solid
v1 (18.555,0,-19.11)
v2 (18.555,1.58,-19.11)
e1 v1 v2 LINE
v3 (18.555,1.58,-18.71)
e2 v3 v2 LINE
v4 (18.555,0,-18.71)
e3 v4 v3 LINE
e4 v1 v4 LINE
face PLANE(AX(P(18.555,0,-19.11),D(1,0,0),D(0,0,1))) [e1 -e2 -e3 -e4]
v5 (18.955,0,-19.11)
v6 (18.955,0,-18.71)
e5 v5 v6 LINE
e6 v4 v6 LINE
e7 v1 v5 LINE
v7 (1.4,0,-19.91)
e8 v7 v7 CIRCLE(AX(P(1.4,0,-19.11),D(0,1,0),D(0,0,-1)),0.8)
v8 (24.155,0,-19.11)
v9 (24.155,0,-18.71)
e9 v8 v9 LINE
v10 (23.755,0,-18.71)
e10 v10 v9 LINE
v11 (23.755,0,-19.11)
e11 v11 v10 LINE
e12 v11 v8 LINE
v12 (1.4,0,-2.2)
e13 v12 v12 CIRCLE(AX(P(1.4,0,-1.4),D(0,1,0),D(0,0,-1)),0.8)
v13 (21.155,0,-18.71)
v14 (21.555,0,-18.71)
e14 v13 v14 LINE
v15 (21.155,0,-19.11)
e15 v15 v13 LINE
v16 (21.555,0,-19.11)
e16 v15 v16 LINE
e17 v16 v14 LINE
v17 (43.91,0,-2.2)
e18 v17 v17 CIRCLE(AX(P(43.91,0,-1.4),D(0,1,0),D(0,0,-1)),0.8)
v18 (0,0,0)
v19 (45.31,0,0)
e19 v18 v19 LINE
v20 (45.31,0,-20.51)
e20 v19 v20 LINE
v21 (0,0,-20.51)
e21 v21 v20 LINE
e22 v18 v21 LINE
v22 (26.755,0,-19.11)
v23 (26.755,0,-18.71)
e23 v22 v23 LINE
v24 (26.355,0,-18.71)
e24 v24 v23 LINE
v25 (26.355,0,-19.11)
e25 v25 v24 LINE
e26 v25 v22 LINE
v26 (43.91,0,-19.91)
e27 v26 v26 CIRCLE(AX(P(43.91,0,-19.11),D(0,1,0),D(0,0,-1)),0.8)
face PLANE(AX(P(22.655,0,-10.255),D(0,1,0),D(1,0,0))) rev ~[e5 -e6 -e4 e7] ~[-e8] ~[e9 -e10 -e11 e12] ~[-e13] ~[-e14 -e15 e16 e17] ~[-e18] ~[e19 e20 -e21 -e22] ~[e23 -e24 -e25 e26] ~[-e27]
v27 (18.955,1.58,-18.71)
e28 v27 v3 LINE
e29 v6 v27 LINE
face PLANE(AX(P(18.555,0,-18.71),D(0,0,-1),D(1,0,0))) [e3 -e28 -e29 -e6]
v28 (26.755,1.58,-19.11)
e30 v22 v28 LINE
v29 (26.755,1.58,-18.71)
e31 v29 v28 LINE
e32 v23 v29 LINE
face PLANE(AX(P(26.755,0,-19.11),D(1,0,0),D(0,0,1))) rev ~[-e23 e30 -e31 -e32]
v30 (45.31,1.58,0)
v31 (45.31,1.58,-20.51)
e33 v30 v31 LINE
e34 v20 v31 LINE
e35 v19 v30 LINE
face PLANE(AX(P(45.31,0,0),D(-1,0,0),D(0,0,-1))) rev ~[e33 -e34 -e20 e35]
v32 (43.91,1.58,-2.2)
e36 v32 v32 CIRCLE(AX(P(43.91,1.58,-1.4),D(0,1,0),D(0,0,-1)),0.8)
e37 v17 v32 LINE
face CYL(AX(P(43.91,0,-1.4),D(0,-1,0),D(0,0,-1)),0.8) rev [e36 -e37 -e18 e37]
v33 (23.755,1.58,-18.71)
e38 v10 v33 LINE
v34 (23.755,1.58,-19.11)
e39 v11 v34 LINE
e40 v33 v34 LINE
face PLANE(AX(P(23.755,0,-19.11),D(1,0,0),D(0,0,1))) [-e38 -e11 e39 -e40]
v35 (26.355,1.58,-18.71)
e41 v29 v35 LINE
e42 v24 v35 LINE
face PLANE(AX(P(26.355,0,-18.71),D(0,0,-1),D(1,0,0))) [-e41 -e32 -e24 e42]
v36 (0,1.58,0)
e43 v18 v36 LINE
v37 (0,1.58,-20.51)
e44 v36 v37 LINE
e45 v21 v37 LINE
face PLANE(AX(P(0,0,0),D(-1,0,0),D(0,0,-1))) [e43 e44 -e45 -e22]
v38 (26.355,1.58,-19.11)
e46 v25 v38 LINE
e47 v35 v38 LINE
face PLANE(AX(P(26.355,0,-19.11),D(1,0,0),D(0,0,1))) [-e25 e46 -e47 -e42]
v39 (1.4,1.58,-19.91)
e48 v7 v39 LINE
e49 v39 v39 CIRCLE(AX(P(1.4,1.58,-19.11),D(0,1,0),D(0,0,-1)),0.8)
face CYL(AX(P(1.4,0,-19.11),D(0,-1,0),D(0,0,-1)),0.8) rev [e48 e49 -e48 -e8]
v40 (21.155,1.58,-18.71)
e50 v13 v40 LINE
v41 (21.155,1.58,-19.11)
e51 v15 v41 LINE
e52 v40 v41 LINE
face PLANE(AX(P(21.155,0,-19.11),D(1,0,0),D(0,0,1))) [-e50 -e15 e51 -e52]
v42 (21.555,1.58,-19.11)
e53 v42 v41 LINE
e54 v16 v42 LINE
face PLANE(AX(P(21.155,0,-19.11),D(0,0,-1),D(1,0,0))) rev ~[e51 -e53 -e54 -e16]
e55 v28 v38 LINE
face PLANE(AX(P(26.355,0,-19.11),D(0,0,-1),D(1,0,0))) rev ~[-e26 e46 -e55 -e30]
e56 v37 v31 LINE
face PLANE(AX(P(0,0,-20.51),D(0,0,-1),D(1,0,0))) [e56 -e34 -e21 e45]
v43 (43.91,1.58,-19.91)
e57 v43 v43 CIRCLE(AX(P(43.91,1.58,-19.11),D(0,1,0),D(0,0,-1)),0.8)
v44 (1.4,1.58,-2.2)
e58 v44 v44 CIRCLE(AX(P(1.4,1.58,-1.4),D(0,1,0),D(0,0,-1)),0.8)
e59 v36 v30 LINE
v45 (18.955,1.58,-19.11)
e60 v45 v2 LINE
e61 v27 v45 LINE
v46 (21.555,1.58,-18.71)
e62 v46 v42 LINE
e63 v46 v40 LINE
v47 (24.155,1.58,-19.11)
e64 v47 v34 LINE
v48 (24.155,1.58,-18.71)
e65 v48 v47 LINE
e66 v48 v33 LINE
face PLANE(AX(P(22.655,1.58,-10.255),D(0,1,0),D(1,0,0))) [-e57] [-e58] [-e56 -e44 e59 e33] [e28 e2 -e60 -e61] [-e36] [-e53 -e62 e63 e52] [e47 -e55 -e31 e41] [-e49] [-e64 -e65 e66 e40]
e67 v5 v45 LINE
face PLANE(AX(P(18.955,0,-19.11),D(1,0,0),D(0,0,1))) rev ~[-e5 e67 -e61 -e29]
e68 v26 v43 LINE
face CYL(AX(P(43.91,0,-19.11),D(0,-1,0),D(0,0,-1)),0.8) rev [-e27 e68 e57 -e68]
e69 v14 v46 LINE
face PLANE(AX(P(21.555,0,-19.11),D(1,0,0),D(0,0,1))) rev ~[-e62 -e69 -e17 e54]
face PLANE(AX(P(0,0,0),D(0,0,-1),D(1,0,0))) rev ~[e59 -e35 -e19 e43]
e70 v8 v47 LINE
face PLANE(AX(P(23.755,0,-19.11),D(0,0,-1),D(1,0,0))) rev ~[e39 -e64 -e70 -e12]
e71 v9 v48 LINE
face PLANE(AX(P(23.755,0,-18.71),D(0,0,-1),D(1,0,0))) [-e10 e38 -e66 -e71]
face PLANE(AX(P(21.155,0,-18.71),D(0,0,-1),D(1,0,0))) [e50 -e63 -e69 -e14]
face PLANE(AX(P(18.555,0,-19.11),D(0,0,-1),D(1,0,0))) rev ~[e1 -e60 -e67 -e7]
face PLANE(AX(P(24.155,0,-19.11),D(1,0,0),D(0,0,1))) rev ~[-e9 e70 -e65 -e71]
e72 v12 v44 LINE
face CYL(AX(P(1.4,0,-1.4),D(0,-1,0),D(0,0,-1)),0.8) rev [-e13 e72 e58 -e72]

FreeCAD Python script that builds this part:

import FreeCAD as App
import Part
import Sketcher

V = App.Vector
Q = App.Units.Quantity

doc = App.newDocument("Part")
params = doc.addObject("Spreadsheet::Sheet", "Params")
for row, (alias, value) in enumerate([
    ("sketch1_diameter", "1.6 mm"),
    ("sketch1_width", "45.31 mm"),
    ("sketch1_height", "20.51 mm"),
    ("pad1_length", "1.58 mm"),
    ("sketch2_width", "0.4 mm"),
], start=1):
    params.set(f"A{row}", alias)
    params.set(f"B{row}", "=" + value)
    params.setAlias(f"B{row}", alias)

body = doc.addObject("PartDesign::Body", "Body")

sketch1 = body.newObject("Sketcher::SketchObject", "Sketch")
sketch1.AttachmentSupport = (doc.getObject("XZ_Plane"), [""])
sketch1.MapMode = "FlatFace"
sketch1.addGeometry([
    Part.LineSegment(V(0, -20.5, 0), V(0, 0, 0)),
    Part.LineSegment(V(0, 0, 0), V(45.3, 0, 0)),
    Part.LineSegment(V(45.3, 0, 0), V(45.3, -20.5, 0)),
    Part.LineSegment(V(45.3, -20.5, 0), V(0, -20.5, 0)),
    Part.Circle(V(1.4, -1.4, 0), V(0, 0, 1), 0.8),
    Part.Circle(V(43.9, -1.4, 0), V(0, 0, 1), 0.8),
    Part.Circle(V(1.4, -19.1, 0), V(0, 0, 1), 0.8),
    Part.Circle(V(43.9, -19.1, 0), V(0, 0, 1), 0.8),
], False)
sketch1.addConstraint([
    Sketcher.Constraint("Coincident", 0, 2, 1, 1),
    Sketcher.Constraint("Coincident", 1, 2, 2, 1),
    Sketcher.Constraint("Coincident", 2, 2, 3, 1),
    Sketcher.Constraint("Coincident", 3, 2, 0, 1),
    Sketcher.Constraint("Vertical", 0),
    Sketcher.Constraint("Horizontal", 1),
    Sketcher.Constraint("Vertical", 2),
    Sketcher.Constraint("Horizontal", 3),
    Sketcher.Constraint("Coincident", 0, 2, -1, 1),
    Sketcher.Constraint("Equal", 4, 5),
    Sketcher.Constraint("Equal", 5, 6),
    Sketcher.Constraint("Equal", 6, 7),
    Sketcher.Constraint("Horizontal", 4, 3, 5, 3),
    Sketcher.Constraint("Horizontal", 6, 3, 7, 3),
    Sketcher.Constraint("Vertical", 4, 3, 6, 3),
    Sketcher.Constraint("Vertical", 5, 3, 7, 3),
    Sketcher.Constraint("Diameter", 4, Q("1.6 mm")),
    Sketcher.Constraint("DistanceX", 1, 1, 1, 2, Q("45.31 mm")),
    Sketcher.Constraint("DistanceY", 0, 1, 0, 2, Q("20.51 mm")),
    Sketcher.Constraint("DistanceX", -1, 1, 4, 3, Q("1.4 mm")),
    Sketcher.Constraint("DistanceY", 4, 3, -1, 1, Q("1.4 mm")),
    Sketcher.Constraint("DistanceX", 5, 3, 1, 2, Q("1.4 mm")),
    Sketcher.Constraint("DistanceY", 2, 2, 7, 3, Q("1.4 mm")),
])
sketch1.setExpression("Constraints[16]", "Params.sketch1_diameter")
sketch1.setExpression("Constraints[17]", "Params.sketch1_width")
sketch1.setExpression("Constraints[18]", "Params.sketch1_height")
pad1 = body.newObject("PartDesign::Pad", "Pad")
pad1.Profile = sketch1
pad1.setExpression("Length", "Params.pad1_length")
pad1.Reversed = True

sketch2 = body.newObject("Sketcher::SketchObject", "Sketch001")
sketch2.AttachmentSupport = (doc.getObject("XZ_Plane"), [""])
sketch2.MapMode = "FlatFace"
sketch2.addGeometry([
    Part.LineSegment(V(21.16, -18.71, 0), V(21.16, -19.11, 0)),
    Part.LineSegment(V(21.16, -19.11, 0), V(21.55, -19.11, 0)),
    Part.LineSegment(V(21.55, -19.11, 0), V(21.55, -18.71, 0)),
    Part.LineSegment(V(21.55, -18.71, 0), V(21.16, -18.71, 0)),
    Part.LineSegment(V(18.55, -18.71, 0), V(18.55, -19.11, 0)),
    Part.LineSegment(V(18.55, -19.11, 0), V(18.95, -19.11, 0)),
    Part.LineSegment(V(18.95, -19.11, 0), V(18.95, -18.71, 0)),
    Part.LineSegment(V(18.95, -18.71, 0), V(18.55, -18.71, 0)),
    Part.LineSegment(V(23.75, -18.71, 0), V(23.75, -19.11, 0)),
    Part.LineSegment(V(23.75, -19.11, 0), V(24.16, -19.11, 0)),
    Part.LineSegment(V(24.16, -19.11, 0), V(24.16, -18.71, 0)),
    Part.LineSegment(V(24.16, -18.71, 0), V(23.75, -18.71, 0)),
    Part.LineSegment(V(26.36, -18.71, 0), V(26.36, -19.11, 0)),
    Part.LineSegment(V(26.36, -19.11, 0), V(26.75, -19.11, 0)),
    Part.LineSegment(V(26.75, -19.11, 0), V(26.75, -18.71, 0)),
    Part.LineSegment(V(26.75, -18.71, 0), V(26.36, -18.71, 0)),
], False)
sketch2.addConstraint([
    Sketcher.Constraint("Coincident", 0, 2, 1, 1),
    Sketcher.Constraint("Coincident", 1, 2, 2, 1),
    Sketcher.Constraint("Coincident", 2, 2, 3, 1),
    Sketcher.Constraint("Coincident", 3, 2, 0, 1),
    Sketcher.Constraint("Coincident", 4, 2, 5, 1),
    Sketcher.Constraint("Coincident", 5, 2, 6, 1),
    Sketcher.Constraint("Coincident", 6, 2, 7, 1),
    Sketcher.Constraint("Coincident", 7, 2, 4, 1),
    Sketcher.Constraint("Coincident", 8, 2, 9, 1),
    Sketcher.Constraint("Coincident", 9, 2, 10, 1),
    Sketcher.Constraint("Coincident", 10, 2, 11, 1),
    Sketcher.Constraint("Coincident", 11, 2, 8, 1),
    Sketcher.Constraint("Coincident", 12, 2, 13, 1),
    Sketcher.Constraint("Coincident", 13, 2, 14, 1),
    Sketcher.Constraint("Coincident", 14, 2, 15, 1),
    Sketcher.Constraint("Coincident", 15, 2, 12, 1),
    Sketcher.Constraint("Vertical", 0),
    Sketcher.Constraint("Horizontal", 1),
    Sketcher.Constraint("Vertical", 2),
    Sketcher.Constraint("Horizontal", 3),
    Sketcher.Constraint("Vertical", 4),
    Sketcher.Constraint("Horizontal", 5),
    Sketcher.Constraint("Vertical", 6),
    Sketcher.Constraint("Horizontal", 7),
    Sketcher.Constraint("Vertical", 8),
    Sketcher.Constraint("Horizontal", 9),
    Sketcher.Constraint("Vertical", 10),
    Sketcher.Constraint("Horizontal", 11),
    Sketcher.Constraint("Vertical", 12),
    Sketcher.Constraint("Horizontal", 13),
    Sketcher.Constraint("Vertical", 14),
    Sketcher.Constraint("Horizontal", 15),
    Sketcher.Constraint("Horizontal", 1, 2, 4, 2),
    Sketcher.Constraint("Horizontal", 3, 2, 6, 2),
    Sketcher.Constraint("Horizontal", 5, 2, 8, 2),
    Sketcher.Constraint("Horizontal", 7, 2, 10, 2),
    Sketcher.Constraint("Horizontal", 9, 2, 12, 2),
    Sketcher.Constraint("Horizontal", 11, 2, 14, 2),
    Sketcher.Constraint("Equal", 3, 5),
    Sketcher.Constraint("Equal", 7, 9),
    Sketcher.Constraint("Equal", 11, 13),
    Sketcher.Constraint("Equal", 15, 0),
    Sketcher.Constraint("DistanceX", 1, 1, 1, 2, Q("0.4 mm")),
    Sketcher.Constraint("DistanceX", 4, 2, 1, 2, Q("3 mm")),
    Sketcher.Constraint("DistanceX", 0, 2, 9, 2, Q("3 mm")),
    Sketcher.Constraint("DistanceX", 8, 2, 13, 2, Q("3 mm")),
    Sketcher.Constraint("DistanceY", 0, 2, -1, 1, Q("19.11 mm")),
    Sketcher.Constraint("DistanceX", -1, 1, 0, 2, Q("21.155 mm")),
])
sketch2.setExpression("Constraints[42]", "Params.sketch2_width")
pocket1 = body.newObject("PartDesign::Pocket", "Pocket")
pocket1.Profile = sketch2
pocket1.Type = "ThroughAll"

doc.recompute()
